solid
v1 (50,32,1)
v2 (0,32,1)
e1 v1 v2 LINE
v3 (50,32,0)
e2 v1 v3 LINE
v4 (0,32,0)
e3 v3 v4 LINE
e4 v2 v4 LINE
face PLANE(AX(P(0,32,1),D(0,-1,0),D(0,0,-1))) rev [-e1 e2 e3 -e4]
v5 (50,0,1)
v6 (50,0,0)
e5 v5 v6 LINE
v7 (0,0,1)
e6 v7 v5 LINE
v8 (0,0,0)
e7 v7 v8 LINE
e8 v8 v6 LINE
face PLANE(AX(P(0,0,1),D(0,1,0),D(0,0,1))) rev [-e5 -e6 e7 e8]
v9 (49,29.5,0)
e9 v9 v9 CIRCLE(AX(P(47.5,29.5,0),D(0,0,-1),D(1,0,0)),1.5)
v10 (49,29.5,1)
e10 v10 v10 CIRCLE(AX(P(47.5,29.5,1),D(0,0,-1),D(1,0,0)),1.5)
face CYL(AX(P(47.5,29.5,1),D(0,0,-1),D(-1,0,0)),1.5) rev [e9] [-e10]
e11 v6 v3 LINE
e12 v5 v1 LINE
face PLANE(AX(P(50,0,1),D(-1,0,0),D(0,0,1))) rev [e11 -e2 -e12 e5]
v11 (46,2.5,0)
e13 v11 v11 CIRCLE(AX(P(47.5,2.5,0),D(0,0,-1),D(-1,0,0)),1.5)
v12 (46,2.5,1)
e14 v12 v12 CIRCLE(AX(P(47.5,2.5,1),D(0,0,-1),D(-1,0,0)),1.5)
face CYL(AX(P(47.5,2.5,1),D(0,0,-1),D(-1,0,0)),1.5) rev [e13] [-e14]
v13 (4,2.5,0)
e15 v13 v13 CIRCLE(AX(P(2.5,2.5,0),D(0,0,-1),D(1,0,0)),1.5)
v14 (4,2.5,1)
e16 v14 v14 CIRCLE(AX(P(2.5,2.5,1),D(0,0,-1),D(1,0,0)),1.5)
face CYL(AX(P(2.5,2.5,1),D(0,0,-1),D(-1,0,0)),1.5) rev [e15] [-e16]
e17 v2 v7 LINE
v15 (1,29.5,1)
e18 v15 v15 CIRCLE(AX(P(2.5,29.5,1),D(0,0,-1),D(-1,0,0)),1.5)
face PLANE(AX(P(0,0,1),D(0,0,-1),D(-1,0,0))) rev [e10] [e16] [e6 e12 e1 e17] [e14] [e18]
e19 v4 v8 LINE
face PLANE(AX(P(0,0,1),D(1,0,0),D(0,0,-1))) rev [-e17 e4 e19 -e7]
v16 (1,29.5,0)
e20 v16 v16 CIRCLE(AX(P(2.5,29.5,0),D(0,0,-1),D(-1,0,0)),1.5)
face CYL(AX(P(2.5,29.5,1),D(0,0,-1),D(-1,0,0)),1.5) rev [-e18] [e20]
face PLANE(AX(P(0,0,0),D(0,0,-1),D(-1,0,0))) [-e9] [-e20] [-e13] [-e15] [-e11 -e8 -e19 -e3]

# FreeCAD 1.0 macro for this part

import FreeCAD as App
import Part
import Sketcher
from FreeCAD import Vector
Q = App.Units.Quantity


def add_polygon(sketch, points):
    """Adds a closed chain of lines whose ends are joined by coincident constraints."""
    first, n = sketch.GeometryCount, len(points)
    for a, b in zip(points, points[1:] + points[:1]):
        sketch.addGeometry(Part.LineSegment(App.Vector(*a, 0), App.Vector(*b, 0)), False)
    for i in range(n):
        sketch.addConstraint(Sketcher.Constraint("Coincident", first + i, 2, first + (i + 1) % n, 1))

doc = App.newDocument("Part")
body = doc.addObject("PartDesign::Body", "Body")

# Sketch on XY plane
sketch1 = body.newObject("Sketcher::SketchObject", "Sketch")
sketch1.AttachmentSupport = (doc.getObject("XY_Plane"), [""])
sketch1.MapMode = "FlatFace"
add_polygon(sketch1, [(0, 32), (0, 0), (50, 0), (50, 32)])  # lines 0-3
sketch1.addConstraint(Sketcher.Constraint("Vertical", 0))
sketch1.addConstraint(Sketcher.Constraint("Horizontal", 1))
sketch1.addConstraint(Sketcher.Constraint("Vertical", 2))
sketch1.addConstraint(Sketcher.Constraint("Horizontal", 3))
sketch1.addConstraint(Sketcher.Constraint("Coincident", 0, 2, -1, 1))
sketch1.addConstraint(Sketcher.Constraint("DistanceX", 1, 1, 1, 2, Q("50 mm")))
sketch1.addConstraint(Sketcher.Constraint("DistanceY", 0, 2, 0, 1, Q("32 mm")))
pad1 = body.newObject("PartDesign::Pad", "Pad")
pad1.Profile = sketch1
pad1.Length = 1

# Sketch on XY plane
sketch2 = body.newObject("Sketcher::SketchObject", "Sketch001")
sketch2.AttachmentSupport = (doc.getObject("XY_Plane"), [""])
sketch2.MapMode = "FlatFace"
sketch2.addGeometry(Part.Circle(Vector(2.5, 29.5, 0), Vector(0, 0, 1), 1.5), False)
sketch2.addGeometry(Part.Circle(Vector(2.5, 2.5, 0), Vector(0, 0, 1), 1.5), False)
sketch2.addGeometry(Part.Circle(Vector(47.5, 2.5, 0), Vector(0, 0, 1), 1.5), False)
sketch2.addGeometry(Part.Circle(Vector(47.5, 29.5, 0), Vector(0, 0, 1), 1.5), False)
sketch2.addConstraint(Sketcher.Constraint("Equal", 0, 1))
sketch2.addConstraint(Sketcher.Constraint("Equal", 1, 2))
sketch2.addConstraint(Sketcher.Constraint("Equal", 2, 3))
sketch2.addConstraint(Sketcher.Constraint("Horizontal", 1, 3, 2, 3))
sketch2.addConstraint(Sketcher.Constraint("Horizontal", 0, 3, 3, 3))
sketch2.addConstraint(Sketcher.Constraint("Vertical", 0, 3, 1, 3))
sketch2.addConstraint(Sketcher.Constraint("Vertical", 2, 3, 3, 3))
sketch2.addConstraint(Sketcher.Constraint("Diameter", 0, Q("3 mm")))
sketch2.addConstraint(Sketcher.Constraint("DistanceY", 1, 3, 0, 3, Q("27 mm")))
sketch2.addConstraint(Sketcher.Constraint("DistanceX", 1, 3, 2, 3, Q("45 mm")))
sketch2.addConstraint(Sketcher.Constraint("DistanceX", -1, 1, 0, 3, Q("2.5 mm")))
sketch2.addConstraint(Sketcher.Constraint("DistanceY", -1, 1, 0, 3, Q("29.5 mm")))
pocket1 = body.newObject("PartDesign::Pocket", "Pocket")
pocket1.Profile = sketch2
pocket1.Type = "ThroughAll"
pocket1.Reversed = True

doc.recompute()
